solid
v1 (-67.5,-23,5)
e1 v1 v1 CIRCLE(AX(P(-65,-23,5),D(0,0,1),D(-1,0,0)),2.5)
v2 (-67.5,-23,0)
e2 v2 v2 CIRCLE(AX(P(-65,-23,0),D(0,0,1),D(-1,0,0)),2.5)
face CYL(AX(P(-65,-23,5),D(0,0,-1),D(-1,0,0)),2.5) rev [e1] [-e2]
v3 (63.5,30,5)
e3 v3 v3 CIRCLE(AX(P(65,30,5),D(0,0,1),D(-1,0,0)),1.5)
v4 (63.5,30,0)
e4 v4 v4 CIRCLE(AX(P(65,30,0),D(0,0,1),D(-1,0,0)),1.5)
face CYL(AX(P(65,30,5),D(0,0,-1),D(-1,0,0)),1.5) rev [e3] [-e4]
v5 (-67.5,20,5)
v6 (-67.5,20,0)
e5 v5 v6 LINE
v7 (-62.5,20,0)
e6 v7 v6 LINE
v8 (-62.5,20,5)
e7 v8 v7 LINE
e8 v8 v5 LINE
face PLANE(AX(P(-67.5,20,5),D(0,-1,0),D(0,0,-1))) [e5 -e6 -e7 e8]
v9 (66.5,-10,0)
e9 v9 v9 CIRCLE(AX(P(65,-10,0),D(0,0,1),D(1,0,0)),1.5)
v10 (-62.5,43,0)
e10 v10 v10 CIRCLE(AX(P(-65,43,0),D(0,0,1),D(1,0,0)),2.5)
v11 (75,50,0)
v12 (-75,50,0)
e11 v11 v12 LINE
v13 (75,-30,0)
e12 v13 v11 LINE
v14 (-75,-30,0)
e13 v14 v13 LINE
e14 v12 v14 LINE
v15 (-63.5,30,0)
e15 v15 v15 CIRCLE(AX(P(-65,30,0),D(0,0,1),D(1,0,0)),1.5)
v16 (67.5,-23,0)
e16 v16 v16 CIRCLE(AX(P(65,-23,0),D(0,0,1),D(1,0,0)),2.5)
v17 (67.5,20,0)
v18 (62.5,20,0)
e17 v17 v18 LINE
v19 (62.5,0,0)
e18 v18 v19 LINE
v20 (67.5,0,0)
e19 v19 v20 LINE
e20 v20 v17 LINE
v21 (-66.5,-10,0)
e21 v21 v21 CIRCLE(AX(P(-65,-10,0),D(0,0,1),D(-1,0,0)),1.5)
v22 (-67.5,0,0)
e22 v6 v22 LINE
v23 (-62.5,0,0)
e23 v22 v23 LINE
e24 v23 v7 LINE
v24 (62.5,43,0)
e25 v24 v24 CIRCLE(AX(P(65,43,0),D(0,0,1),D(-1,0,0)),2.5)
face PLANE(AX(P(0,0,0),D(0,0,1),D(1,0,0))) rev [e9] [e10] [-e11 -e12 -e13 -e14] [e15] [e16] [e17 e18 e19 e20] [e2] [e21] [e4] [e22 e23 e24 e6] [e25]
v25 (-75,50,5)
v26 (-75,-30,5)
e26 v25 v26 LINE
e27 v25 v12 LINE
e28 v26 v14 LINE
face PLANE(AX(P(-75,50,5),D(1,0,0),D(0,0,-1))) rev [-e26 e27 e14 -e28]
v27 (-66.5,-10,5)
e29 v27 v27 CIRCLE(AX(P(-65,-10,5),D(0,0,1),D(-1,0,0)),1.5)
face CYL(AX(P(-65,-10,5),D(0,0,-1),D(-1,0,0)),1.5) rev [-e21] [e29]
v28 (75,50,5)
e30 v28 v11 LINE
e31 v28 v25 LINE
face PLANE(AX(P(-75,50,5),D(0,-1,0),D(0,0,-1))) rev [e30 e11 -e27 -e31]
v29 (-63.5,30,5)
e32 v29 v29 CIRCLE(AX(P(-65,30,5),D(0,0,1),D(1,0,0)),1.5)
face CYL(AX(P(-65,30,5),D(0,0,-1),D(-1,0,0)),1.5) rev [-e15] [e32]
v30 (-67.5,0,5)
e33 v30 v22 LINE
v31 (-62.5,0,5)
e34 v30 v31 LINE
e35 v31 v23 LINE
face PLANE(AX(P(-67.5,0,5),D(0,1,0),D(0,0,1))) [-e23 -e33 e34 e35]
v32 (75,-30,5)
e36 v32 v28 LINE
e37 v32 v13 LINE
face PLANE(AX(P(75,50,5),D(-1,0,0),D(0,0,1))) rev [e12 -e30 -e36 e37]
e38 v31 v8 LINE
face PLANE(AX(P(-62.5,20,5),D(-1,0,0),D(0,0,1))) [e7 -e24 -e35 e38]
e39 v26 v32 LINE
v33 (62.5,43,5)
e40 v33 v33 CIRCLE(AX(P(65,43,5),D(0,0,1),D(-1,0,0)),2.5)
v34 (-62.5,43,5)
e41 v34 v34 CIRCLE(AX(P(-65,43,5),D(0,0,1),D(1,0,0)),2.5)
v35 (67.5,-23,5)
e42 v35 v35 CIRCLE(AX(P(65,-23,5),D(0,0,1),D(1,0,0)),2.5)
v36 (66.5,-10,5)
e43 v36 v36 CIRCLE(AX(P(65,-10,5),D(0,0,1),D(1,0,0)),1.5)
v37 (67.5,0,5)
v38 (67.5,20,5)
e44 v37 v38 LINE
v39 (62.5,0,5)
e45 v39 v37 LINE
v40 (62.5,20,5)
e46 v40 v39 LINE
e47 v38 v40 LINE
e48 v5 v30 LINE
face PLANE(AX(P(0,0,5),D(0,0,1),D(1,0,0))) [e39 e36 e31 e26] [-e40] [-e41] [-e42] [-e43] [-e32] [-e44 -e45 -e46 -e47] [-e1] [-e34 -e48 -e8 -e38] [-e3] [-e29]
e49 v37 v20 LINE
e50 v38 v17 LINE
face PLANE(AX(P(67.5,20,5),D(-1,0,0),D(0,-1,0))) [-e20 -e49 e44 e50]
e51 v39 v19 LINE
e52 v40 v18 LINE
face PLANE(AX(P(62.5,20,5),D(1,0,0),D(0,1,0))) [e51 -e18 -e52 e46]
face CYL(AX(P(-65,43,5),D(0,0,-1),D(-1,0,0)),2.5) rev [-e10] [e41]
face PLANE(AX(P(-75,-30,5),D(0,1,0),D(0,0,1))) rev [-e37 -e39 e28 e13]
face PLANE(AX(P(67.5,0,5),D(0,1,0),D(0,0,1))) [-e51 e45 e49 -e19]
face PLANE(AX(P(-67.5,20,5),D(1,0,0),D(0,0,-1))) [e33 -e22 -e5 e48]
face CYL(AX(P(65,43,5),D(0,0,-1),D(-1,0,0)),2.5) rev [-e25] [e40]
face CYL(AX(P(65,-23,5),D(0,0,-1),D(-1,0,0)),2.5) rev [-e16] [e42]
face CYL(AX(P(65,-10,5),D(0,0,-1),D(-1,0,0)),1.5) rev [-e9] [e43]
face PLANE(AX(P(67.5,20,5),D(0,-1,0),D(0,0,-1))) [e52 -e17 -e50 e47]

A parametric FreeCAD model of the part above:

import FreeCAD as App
import Part
import Sketcher

V = App.Vector
Q = App.Units.Quantity


def add_polygon(sketch, points):
    """Adds a closed chain of lines whose ends are joined by coincident constraints."""
    first, n = sketch.GeometryCount, len(points)
    for a, b in zip(points, points[1:] + points[:1]):
        sketch.addGeometry(Part.LineSegment(App.Vector(*a, 0), App.Vector(*b, 0)), False)
    for i in range(n):
        sketch.addConstraint(Sketcher.Constraint("Coincident", first + i, 2, first + (i + 1) % n, 1))

doc = App.newDocument("Part")
body = doc.addObject("PartDesign::Body", "Body")

sketch1 = body.newObject("Sketcher::SketchObject", "Sketch")
sketch1.AttachmentSupport = (doc.getObject("XY_Plane"), [""])
sketch1.MapMode = "FlatFace"
add_polygon(sketch1, [(-75, 50), (-75, -30), (75, -30), (75, 50)])
sketch1.addGeometry(Part.Circle(V(-65, -23, 0), V(0, 0, 1), 2.5), False)
sketch1.addGeometry(Part.Circle(V(-65, -10, 0), V(0, 0, 1), 1.5), False)
sketch1.addGeometry(Part.Circle(V(65, -23, 0), V(0, 0, 1), 2.5), False)
sketch1.addGeometry(Part.Circle(V(65, -10, 0), V(0, 0, 1), 1.5), False)
add_polygon(sketch1, [(-62.5, 0), (-67.5, 0), (-67.5, 20), (-62.5, 20)])
sketch1.addGeometry(Part.Circle(V(-65, 30, 0), V(0, 0, 1), 1.5), False)
sketch1.addGeometry(Part.Circle(V(-65, 43, 0), V(0, 0, 1), 2.5), False)
add_polygon(sketch1, [(67.5, 0), (62.5, 0), (62.5, 20), (67.5, 20)])
sketch1.addGeometry(Part.Circle(V(65, 30, 0), V(0, 0, 1), 1.5), False)
sketch1.addGeometry(Part.Circle(V(65, 43, 0), V(0, 0, 1), 2.5), False)
sketch1.addConstraint(Sketcher.Constraint("Vertical", 0))
sketch1.addConstraint(Sketcher.Constraint("Horizontal", 1))
sketch1.addConstraint(Sketcher.Constraint("Vertical", 2))
sketch1.addConstraint(Sketcher.Constraint("Horizontal", 3))
sketch1.addConstraint(Sketcher.Constraint("Horizontal", 8))
sketch1.addConstraint(Sketcher.Constraint("Vertical", 9))
sketch1.addConstraint(Sketcher.Constraint("Horizontal", 10))
sketch1.addConstraint(Sketcher.Constraint("Vertical", 11))
sketch1.addConstraint(Sketcher.Constraint("Horizontal", 14))
sketch1.addConstraint(Sketcher.Constraint("Vertical", 15))
sketch1.addConstraint(Sketcher.Constraint("Horizontal", 16))
sketch1.addConstraint(Sketcher.Constraint("Vertical", 17))
sketch1.addConstraint(Sketcher.Constraint("Equal", 4, 6))
sketch1.addConstraint(Sketcher.Constraint("Equal", 5, 7))
sketch1.addConstraint(Sketcher.Constraint("Equal", 7, 12))
sketch1.addConstraint(Sketcher.Constraint("Equal", 6, 13))
sketch1.addConstraint(Sketcher.Constraint("Equal", 12, 18))
sketch1.addConstraint(Sketcher.Constraint("Equal", 13, 19))
sketch1.addConstraint(Sketcher.Constraint("Symmetric", 11, 2, 14, 2, -1, 1))
sketch1.addConstraint(Sketcher.Constraint("Symmetric", 4, 3, 6, 3, -2))
sketch1.addConstraint(Sketcher.Constraint("Symmetric", 5, 3, 7, 3, -2))
sketch1.addConstraint(Sketcher.Constraint("Symmetric", 12, 3, 18, 3, -2))
sketch1.addConstraint(Sketcher.Constraint("Symmetric", 13, 3, 19, 3, -2))
sketch1.addConstraint(Sketcher.Constraint("Symmetric", 9, 2, 16, 2, -2))
sketch1.addConstraint(Sketcher.Constraint("PointOnObject", 8, 2, -1))
sketch1.addConstraint(Sketcher.Constraint("Vertical", 4, 3, 5, 3))
sketch1.addConstraint(Sketcher.Constraint("Vertical", 5, 3, 12, 3))
sketch1.addConstraint(Sketcher.Constraint("Vertical", 12, 3, 13, 3))
sketch1.addConstraint(Sketcher.Constraint("Diameter", 4, Q("5 mm")))
sketch1.addConstraint(Sketcher.Constraint("Diameter", 5, Q("3 mm")))
sketch1.addConstraint(Sketcher.Constraint("DistanceX", 1, 1, 1, 2, Q("150 mm")))
sketch1.addConstraint(Sketcher.Constraint("DistanceX", 8, 2, 8, 1, Q("5 mm")))
sketch1.addConstraint(Sketcher.Constraint("DistanceY", 0, 2, 0, 1, Q("80 mm")))
sketch1.addConstraint(Sketcher.Constraint("DistanceY", 9, 1, 9, 2, Q("20 mm")))
sketch1.addConstraint(Sketcher.Constraint("DistanceX", 4, 3, -1, 1, Q("65 mm")))
sketch1.addConstraint(Sketcher.Constraint("DistanceY", 4, 3, -1, 1, Q("23 mm")))
sketch1.addConstraint(Sketcher.Constraint("DistanceY", 5, 3, -1, 1, Q("10 mm")))
sketch1.addConstraint(Sketcher.Constraint("DistanceY", -1, 1, 12, 3, Q("30 mm")))
sketch1.addConstraint(Sketcher.Constraint("DistanceY", -1, 1, 13, 3, Q("43 mm")))
sketch1.addConstraint(Sketcher.Constraint("DistanceX", 0, 2, -1, 1, Q("75 mm")))
sketch1.addConstraint(Sketcher.Constraint("DistanceY", 0, 2, -1, 1, Q("30 mm")))
sketch1.addConstraint(Sketcher.Constraint("DistanceX", 8, 2, -1, 1, Q("67.5 mm")))
pad1 = body.newObject("PartDesign::Pad", "Pad")
pad1.Profile = sketch1
pad1.Length = 5

doc.recompute()
